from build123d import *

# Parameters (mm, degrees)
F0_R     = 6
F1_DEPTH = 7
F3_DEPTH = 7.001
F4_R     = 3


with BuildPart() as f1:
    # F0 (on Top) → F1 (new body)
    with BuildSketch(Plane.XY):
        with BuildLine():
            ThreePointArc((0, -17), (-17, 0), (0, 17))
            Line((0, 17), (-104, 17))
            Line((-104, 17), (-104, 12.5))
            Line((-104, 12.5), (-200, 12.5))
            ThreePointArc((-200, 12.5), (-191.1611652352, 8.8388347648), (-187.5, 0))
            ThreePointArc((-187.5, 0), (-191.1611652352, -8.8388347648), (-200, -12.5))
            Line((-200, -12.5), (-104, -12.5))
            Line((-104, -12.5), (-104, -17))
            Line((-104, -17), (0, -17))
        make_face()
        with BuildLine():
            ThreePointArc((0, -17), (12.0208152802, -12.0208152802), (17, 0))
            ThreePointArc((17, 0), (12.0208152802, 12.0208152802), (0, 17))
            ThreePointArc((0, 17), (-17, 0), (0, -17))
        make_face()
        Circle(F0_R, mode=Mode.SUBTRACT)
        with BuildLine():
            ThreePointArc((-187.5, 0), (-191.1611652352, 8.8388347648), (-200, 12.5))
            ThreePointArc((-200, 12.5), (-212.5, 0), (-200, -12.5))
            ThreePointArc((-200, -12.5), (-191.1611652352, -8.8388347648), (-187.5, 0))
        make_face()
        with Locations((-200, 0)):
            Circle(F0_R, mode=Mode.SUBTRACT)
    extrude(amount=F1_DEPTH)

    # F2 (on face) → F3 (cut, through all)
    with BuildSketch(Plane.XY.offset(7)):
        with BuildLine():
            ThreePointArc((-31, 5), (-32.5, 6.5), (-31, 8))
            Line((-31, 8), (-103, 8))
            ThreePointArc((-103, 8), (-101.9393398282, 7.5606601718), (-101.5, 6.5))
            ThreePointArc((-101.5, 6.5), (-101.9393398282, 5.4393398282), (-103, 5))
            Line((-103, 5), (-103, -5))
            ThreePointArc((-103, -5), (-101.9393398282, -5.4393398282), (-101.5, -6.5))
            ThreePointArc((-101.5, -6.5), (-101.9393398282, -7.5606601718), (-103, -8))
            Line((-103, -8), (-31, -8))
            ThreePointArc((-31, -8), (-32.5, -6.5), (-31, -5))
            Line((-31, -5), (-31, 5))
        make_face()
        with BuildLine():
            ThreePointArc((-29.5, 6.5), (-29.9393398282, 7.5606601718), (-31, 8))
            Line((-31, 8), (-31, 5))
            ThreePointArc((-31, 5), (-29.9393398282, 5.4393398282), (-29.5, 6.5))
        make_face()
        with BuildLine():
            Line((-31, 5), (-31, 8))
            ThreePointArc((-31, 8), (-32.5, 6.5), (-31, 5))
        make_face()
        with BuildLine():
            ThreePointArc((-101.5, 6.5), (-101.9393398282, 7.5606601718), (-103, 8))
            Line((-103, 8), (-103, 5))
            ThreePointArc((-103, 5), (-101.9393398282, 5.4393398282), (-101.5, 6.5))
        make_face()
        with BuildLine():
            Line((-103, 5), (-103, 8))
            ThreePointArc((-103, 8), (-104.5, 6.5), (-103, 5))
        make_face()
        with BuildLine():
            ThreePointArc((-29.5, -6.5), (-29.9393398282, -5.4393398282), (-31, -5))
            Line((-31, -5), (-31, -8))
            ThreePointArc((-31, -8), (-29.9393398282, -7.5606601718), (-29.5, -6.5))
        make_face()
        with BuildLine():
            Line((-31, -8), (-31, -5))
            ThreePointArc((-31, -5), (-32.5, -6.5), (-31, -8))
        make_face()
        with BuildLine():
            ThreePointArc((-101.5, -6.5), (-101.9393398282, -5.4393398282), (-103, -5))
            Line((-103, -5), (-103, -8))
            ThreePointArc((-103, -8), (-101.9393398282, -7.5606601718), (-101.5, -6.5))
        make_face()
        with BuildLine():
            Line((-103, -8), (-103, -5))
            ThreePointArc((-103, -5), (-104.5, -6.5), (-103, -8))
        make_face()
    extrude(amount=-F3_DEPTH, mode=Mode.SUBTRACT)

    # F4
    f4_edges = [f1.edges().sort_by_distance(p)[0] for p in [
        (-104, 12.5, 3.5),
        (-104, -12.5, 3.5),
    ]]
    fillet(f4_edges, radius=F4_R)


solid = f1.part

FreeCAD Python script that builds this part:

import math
import FreeCAD as App
import Part
import Sketcher
from FreeCAD import Vector
Q = App.Units.Quantity


def edges_at(feature, points):
    """Names of the edges that pass closest to the given points."""
    edges = feature.Shape.Edges
    near = lambda p: min(range(len(edges)), key=lambda i: edges[i].distToShape(Part.Vertex(*p))[0])
    return sorted({f"Edge{near(p) + 1}" for p in points})

doc = App.newDocument("Part")
params = doc.addObject("Spreadsheet::Sheet", "Params")
for row, (alias, value) in enumerate([
    ("sketch1_diameter", "12 mm"),
    ("sketch1_radius", "17 mm"),
    ("sketch1_radius2", "12.5 mm"),
    ("sketch1_width", "104 mm"),
    ("sketch1_width2", "96 mm"),
    ("pad1_length", "7 mm"),
    ("sketch2_radius", "1.5 mm"),
    ("sketch2_width", "72 mm"),
    ("sketch2_height", "10 mm"),
    ("fillet_radius", "3 mm"),
], start=1):
    params.set(f"A{row}", alias)
    params.set(f"B{row}", "=" + value)
    params.setAlias(f"B{row}", alias)

body = doc.addObject("PartDesign::Body", "Body")

sketch1 = doc.addObject("Sketcher::SketchObject", "Sketch")
body.addObject(sketch1)
sketch1.AttachmentSupport = (doc.XY_Plane, [""])
sketch1.MapMode = "FlatFace"
sketch1.addGeometry([
    Part.LineSegment(Vector(0, 17, 0), Vector(-104, 17, 0)),
    Part.LineSegment(Vector(-104, 17, 0), Vector(-104, 12.5, 0)),
    Part.LineSegment(Vector(-104, 12.5, 0), Vector(-200, 12.5, 0)),
    Part.ArcOfCircle(Part.Circle(Vector(-200, 0, 0), Vector(0, 0, 1), 12.5), math.radians(90), math.radians(270)),
    Part.LineSegment(Vector(-200, -12.5, 0), Vector(-104, -12.5, 0)),
    Part.LineSegment(Vector(-104, -12.5, 0), Vector(-104, -17, 0)),
    Part.LineSegment(Vector(-104, -17, 0), Vector(0, -17, 0)),
    Part.ArcOfCircle(Part.Circle(Vector(0, 0, 0), Vector(0, 0, 1), 17), math.radians(-90), math.radians(0)),
    Part.ArcOfCircle(Part.Circle(Vector(0, 0, 0), Vector(0, 0, 1), 17), math.radians(0), math.radians(90)),
    Part.Circle(Vector(-200, 0, 0), Vector(0, 0, 1), 6),
    Part.Circle(Vector(0, 0, 0), Vector(0, 0, 1), 6),
], False)
sketch1.addConstraint([
    Sketcher.Constraint("Coincident", 0, 2, 1, 1),
    Sketcher.Constraint("Coincident", 1, 2, 2, 1),
    Sketcher.Constraint("Tangent", 2, 2, 3, 1),
    Sketcher.Constraint("Tangent", 3, 2, 4, 1),
    Sketcher.Constraint("Coincident", 4, 2, 5, 1),
    Sketcher.Constraint("Coincident", 5, 2, 6, 1),
    Sketcher.Constraint("Tangent", 6, 2, 7, 1),
    Sketcher.Constraint("Tangent", 7, 2, 8, 1),
    Sketcher.Constraint("Tangent", 8, 2, 0, 1),
    Sketcher.Constraint("Horizontal", 0),
    Sketcher.Constraint("Vertical", 1),
    Sketcher.Constraint("Horizontal", 2),
    Sketcher.Constraint("Horizontal", 4),
    Sketcher.Constraint("Vertical", 5),
    Sketcher.Constraint("Horizontal", 6),
    Sketcher.Constraint("Coincident", 7, 3, -1, 1),
    Sketcher.Constraint("Coincident", 10, 3, -1, 1),
    Sketcher.Constraint("Coincident", 9, 3, 3, 3),
    Sketcher.Constraint("Equal", 7, 8),
    Sketcher.Constraint("Equal", 9, 10),
    Sketcher.Constraint("Symmetric", 1, 2, 4, 2, -1),
    Sketcher.Constraint("PointOnObject", 7, 2, -1),
    Sketcher.Constraint("Diameter", 9, Q("12 mm")),
    Sketcher.Constraint("Radius", 7, Q("17 mm")),
    Sketcher.Constraint("Radius", 3, Q("12.5 mm")),
    Sketcher.Constraint("DistanceX", 0, 2, 0, 1, Q("104 mm")),
    Sketcher.Constraint("DistanceX", 2, 2, 2, 1, Q("96 mm")),
])
sketch1.setExpression("Constraints[22]", "Params.sketch1_diameter")
sketch1.setExpression("Constraints[23]", "Params.sketch1_radius")
sketch1.setExpression("Constraints[24]", "Params.sketch1_radius2")
sketch1.setExpression("Constraints[25]", "Params.sketch1_width")
sketch1.setExpression("Constraints[26]", "Params.sketch1_width2")
pad1 = doc.addObject("PartDesign::Pad", "Pad")
body.addObject(pad1)
pad1.Profile = sketch1
pad1.setExpression("Length", "Params.pad1_length")

sketch2 = doc.addObject("Sketcher::SketchObject", "Sketch001")
body.addObject(sketch2)
sketch2.AttachmentSupport = (doc.XY_Plane, [""])
sketch2.MapMode = "FlatFace"
sketch2.AttachmentOffset = App.Placement(Vector(0, 0, 7), App.Rotation())
sketch2.addGeometry([
    Part.LineSegment(Vector(-31, 8, 0), Vector(-103, 8, 0)),
    Part.ArcOfCircle(Part.Circle(Vector(-103, 6.5, 0), Vector(0, 0, 1), 1.5), math.radians(90), math.radians(270)),
    Part.LineSegment(Vector(-103, 5, 0), Vector(-103, -5, 0)),
    Part.ArcOfCircle(Part.Circle(Vector(-103, -6.5, 0), Vector(0, 0, 1), 1.5), math.radians(90), math.radians(270)),
    Part.LineSegment(Vector(-103, -8, 0), Vector(-31, -8, 0)),
    Part.ArcOfCircle(Part.Circle(Vector(-31, -6.5, 0), Vector(0, 0, 1), 1.5), math.radians(-90), math.radians(0)),
    Part.ArcOfCircle(Part.Circle(Vector(-31, -6.5, 0), Vector(0, 0, 1), 1.5), math.radians(0), math.radians(90)),
    Part.LineSegment(Vector(-31, -5, 0), Vector(-31, 5, 0)),
    Part.ArcOfCircle(Part.Circle(Vector(-31, 6.5, 0), Vector(0, 0, 1), 1.5), math.radians(-90), math.radians(0)),
    Part.ArcOfCircle(Part.Circle(Vector(-31, 6.5, 0), Vector(0, 0, 1), 1.5), math.radians(0), math.radians(90)),
], False)
sketch2.addConstraint([
    Sketcher.Constraint("Tangent", 0, 2, 1, 1),
    Sketcher.Constraint("Coincident", 1, 2, 2, 1),
    Sketcher.Constraint("Coincident", 2, 2, 3, 1),
    Sketcher.Constraint("Tangent", 3, 2, 4, 1),
    Sketcher.Constraint("Tangent", 4, 2, 5, 1),
    Sketcher.Constraint("Tangent", 5, 2, 6, 1),
    Sketcher.Constraint("Coincident", 6, 2, 7, 1),
    Sketcher.Constraint("Coincident", 7, 2, 8, 1),
    Sketcher.Constraint("Tangent", 8, 2, 9, 1),
    Sketcher.Constraint("Tangent", 9, 2, 0, 1),
    Sketcher.Constraint("Horizontal", 0),
    Sketcher.Constraint("Vertical", 2),
    Sketcher.Constraint("Horizontal", 4),
    Sketcher.Constraint("Vertical", 7),
    Sketcher.Constraint("Equal", 1, 3),
    Sketcher.Constraint("Equal", 3, 5),
    Sketcher.Constraint("Equal", 5, 6),
    Sketcher.Constraint("Equal", 6, 8),
    Sketcher.Constraint("Equal", 8, 9),
    Sketcher.Constraint("Symmetric", 1, 3, 3, 3, -1),
    Sketcher.Constraint("Symmetric", 5, 2, 8, 2, -1),
    Sketcher.Constraint("Horizontal", 6, 3, 5, 2),
    Sketcher.Constraint("Vertical", 0, 2, 1, 2),
    Sketcher.Constraint("Vertical", 4, 2, 6, 2),
    Sketcher.Constraint("Radius", 1, Q("1.5 mm")),
    Sketcher.Constraint("DistanceX", 0, 2, 0, 1, Q("72 mm")),
    Sketcher.Constraint("DistanceY", 2, 2, 2, 1, Q("10 mm")),
    Sketcher.Constraint("DistanceX", 1, 3, -1, 1, Q("103 mm")),
])
sketch2.setExpression("Constraints[24]", "Params.sketch2_radius")
sketch2.setExpression("Constraints[25]", "Params.sketch2_width")
sketch2.setExpression("Constraints[26]", "Params.sketch2_height")
pocket1 = doc.addObject("PartDesign::Pocket", "Pocket")
body.addObject(pocket1)
pocket1.Profile = sketch2
pocket1.Type = "ThroughAll"
doc.recompute()

fillet = doc.addObject("PartDesign::Fillet", "Fillet")
body.addObject(fillet)
fillet.Base = (pocket1, edges_at(pocket1, [(-104, 12.5, 3.5), (-104, -12.5, 3.5)]))
fillet.setExpression("Radius", "Params.fillet_radius")

doc.recompute()
